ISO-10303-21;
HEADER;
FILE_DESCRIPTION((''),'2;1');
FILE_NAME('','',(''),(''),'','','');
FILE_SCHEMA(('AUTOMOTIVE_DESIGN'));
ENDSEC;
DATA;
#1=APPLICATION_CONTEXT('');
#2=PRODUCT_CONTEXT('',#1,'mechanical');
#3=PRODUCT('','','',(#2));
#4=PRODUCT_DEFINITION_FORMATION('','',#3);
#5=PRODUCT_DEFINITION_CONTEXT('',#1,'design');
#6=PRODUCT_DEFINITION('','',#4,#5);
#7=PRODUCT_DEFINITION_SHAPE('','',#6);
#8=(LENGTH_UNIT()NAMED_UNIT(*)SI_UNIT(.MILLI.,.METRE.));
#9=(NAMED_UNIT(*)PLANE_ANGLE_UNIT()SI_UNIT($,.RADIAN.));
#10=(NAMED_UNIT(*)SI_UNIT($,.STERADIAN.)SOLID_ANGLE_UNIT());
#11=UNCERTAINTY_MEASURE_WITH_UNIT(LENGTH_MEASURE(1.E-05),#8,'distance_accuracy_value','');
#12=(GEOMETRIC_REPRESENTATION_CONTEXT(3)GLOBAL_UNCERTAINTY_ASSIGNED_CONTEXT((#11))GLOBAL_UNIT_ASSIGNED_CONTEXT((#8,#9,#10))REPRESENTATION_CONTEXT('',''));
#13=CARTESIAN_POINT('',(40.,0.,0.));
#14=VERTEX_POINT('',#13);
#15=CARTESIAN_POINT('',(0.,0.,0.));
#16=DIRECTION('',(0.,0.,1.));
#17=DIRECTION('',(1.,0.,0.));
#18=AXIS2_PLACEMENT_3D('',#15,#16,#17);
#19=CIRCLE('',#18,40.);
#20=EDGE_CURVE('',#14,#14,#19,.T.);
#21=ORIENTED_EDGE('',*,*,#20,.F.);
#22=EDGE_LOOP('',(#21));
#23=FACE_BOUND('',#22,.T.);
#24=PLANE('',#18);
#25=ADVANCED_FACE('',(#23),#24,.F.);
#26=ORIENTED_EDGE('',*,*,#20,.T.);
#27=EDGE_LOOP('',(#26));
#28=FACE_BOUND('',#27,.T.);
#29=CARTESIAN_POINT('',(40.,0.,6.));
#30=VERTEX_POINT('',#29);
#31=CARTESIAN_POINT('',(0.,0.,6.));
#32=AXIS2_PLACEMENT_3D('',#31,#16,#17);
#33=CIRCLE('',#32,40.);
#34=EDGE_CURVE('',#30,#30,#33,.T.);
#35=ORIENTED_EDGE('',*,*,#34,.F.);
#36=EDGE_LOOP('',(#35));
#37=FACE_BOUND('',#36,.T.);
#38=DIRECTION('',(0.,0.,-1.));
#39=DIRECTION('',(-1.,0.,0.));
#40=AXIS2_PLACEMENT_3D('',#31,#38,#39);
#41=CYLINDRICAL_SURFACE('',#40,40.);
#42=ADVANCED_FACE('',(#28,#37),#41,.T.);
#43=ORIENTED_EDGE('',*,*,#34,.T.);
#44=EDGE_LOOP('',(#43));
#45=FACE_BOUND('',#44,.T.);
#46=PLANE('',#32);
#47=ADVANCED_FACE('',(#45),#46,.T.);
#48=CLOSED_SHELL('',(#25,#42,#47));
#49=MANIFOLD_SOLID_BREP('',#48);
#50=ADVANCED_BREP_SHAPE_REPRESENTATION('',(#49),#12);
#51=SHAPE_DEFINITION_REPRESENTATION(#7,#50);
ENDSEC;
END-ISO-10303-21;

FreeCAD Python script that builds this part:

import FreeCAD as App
import Part
import Sketcher

V = App.Vector
Q = App.Units.Quantity

doc = App.newDocument("Part")
body = doc.addObject("PartDesign::Body", "Body")

sketch1 = body.newObject("Sketcher::SketchObject", "Sketch")
sketch1.AttachmentSupport = (doc.getObject("XY_Plane"), [""])
sketch1.MapMode = "FlatFace"
sketch1.addGeometry(Part.Circle(V(0, 0, 0), V(0, 0, 1), 40), False)
sketch1.addConstraint(Sketcher.Constraint("Coincident", 0, 3, -1, 1))
sketch1.addConstraint(Sketcher.Constraint("Diameter", 0, Q("80 mm")))
pad1 = body.newObject("PartDesign::Pad", "Pad")
pad1.Profile = sketch1
pad1.Length = 6

doc.recompute()
